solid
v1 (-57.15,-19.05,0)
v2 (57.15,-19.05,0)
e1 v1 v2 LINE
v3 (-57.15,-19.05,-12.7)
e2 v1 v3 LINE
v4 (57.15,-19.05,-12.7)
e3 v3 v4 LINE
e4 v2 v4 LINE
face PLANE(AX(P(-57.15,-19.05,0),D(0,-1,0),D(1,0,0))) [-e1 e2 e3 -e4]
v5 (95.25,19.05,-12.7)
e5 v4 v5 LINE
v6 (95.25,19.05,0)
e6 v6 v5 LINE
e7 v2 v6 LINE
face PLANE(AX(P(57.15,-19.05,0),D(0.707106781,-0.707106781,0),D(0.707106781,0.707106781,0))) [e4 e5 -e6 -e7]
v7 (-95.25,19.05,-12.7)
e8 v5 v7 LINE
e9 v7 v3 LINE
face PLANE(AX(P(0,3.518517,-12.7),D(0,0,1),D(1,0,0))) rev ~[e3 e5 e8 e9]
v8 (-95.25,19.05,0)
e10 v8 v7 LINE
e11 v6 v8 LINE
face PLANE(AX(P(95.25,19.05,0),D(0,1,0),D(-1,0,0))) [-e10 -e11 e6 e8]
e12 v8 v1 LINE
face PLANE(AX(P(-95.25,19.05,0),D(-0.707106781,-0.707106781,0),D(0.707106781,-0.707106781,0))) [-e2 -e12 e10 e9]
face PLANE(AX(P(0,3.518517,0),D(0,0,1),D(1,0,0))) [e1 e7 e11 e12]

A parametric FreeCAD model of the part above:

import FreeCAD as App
import Part
import Sketcher
Q = App.Units.Quantity

doc = App.newDocument("Part")
params = doc.addObject("Spreadsheet::Sheet", "Params")
for row, (alias, value) in enumerate([
    ("sketch1_width", "7.5 in"),
    ("sketch1_width2", "4.5 in"),
    ("pad1_length", "0.5 in"),
], start=1):
    params.set(f"A{row}", alias)
    params.set(f"B{row}", "=" + value)
    params.setAlias(f"B{row}", alias)

body = doc.addObject("PartDesign::Body", "Body")

sketch1 = doc.addObject("Sketcher::SketchObject", "Sketch")
body.addObject(sketch1)
sketch1.AttachmentSupport = (doc.XY_Plane, [""])
sketch1.MapMode = "FlatFace"
sketch1.addGeometry(Part.LineSegment(App.Vector(57, -19, 0), App.Vector(95, 19, 0)), False)
sketch1.addGeometry(Part.LineSegment(App.Vector(95, 19, 0), App.Vector(-95, 19, 0)), False)
sketch1.addGeometry(Part.LineSegment(App.Vector(-95, 19, 0), App.Vector(-57, -19, 0)), False)
sketch1.addGeometry(Part.LineSegment(App.Vector(-57, -19, 0), App.Vector(57, -19, 0)), False)
sketch1.addConstraint(Sketcher.Constraint("Coincident", 0, 2, 1, 1))
sketch1.addConstraint(Sketcher.Constraint("Coincident", 1, 2, 2, 1))
sketch1.addConstraint(Sketcher.Constraint("Coincident", 2, 2, 3, 1))
sketch1.addConstraint(Sketcher.Constraint("Coincident", 3, 2, 0, 1))
sketch1.addConstraint(Sketcher.Constraint("Horizontal", 1))
sketch1.addConstraint(Sketcher.Constraint("Horizontal", 3))
sketch1.addConstraint(Sketcher.Constraint("Perpendicular", 0, 2))
sketch1.addConstraint(Sketcher.Constraint("Equal", 0, 2))
sketch1.addConstraint(Sketcher.Constraint("DistanceX", 1, 2, 1, 1, Q("7.5 in")))
sketch1.addConstraint(Sketcher.Constraint("DistanceX", 3, 1, 3, 2, Q("4.5 in")))
sketch1.addConstraint(Sketcher.Constraint("DistanceX", -1, 1, 0, 2, Q("3.75 in")))
sketch1.addConstraint(Sketcher.Constraint("DistanceY", -1, 1, 0, 2, Q("0.75 in")))
sketch1.setExpression("Constraints[8]", "Params.sketch1_width")
sketch1.setExpression("Constraints[9]", "Params.sketch1_width2")
pad1 = doc.addObject("PartDesign::Pad", "Pad")
body.addObject(pad1)
pad1.Profile = sketch1
pad1.setExpression("Length", "Params.pad1_length")
pad1.Reversed = True

doc.recompute()
